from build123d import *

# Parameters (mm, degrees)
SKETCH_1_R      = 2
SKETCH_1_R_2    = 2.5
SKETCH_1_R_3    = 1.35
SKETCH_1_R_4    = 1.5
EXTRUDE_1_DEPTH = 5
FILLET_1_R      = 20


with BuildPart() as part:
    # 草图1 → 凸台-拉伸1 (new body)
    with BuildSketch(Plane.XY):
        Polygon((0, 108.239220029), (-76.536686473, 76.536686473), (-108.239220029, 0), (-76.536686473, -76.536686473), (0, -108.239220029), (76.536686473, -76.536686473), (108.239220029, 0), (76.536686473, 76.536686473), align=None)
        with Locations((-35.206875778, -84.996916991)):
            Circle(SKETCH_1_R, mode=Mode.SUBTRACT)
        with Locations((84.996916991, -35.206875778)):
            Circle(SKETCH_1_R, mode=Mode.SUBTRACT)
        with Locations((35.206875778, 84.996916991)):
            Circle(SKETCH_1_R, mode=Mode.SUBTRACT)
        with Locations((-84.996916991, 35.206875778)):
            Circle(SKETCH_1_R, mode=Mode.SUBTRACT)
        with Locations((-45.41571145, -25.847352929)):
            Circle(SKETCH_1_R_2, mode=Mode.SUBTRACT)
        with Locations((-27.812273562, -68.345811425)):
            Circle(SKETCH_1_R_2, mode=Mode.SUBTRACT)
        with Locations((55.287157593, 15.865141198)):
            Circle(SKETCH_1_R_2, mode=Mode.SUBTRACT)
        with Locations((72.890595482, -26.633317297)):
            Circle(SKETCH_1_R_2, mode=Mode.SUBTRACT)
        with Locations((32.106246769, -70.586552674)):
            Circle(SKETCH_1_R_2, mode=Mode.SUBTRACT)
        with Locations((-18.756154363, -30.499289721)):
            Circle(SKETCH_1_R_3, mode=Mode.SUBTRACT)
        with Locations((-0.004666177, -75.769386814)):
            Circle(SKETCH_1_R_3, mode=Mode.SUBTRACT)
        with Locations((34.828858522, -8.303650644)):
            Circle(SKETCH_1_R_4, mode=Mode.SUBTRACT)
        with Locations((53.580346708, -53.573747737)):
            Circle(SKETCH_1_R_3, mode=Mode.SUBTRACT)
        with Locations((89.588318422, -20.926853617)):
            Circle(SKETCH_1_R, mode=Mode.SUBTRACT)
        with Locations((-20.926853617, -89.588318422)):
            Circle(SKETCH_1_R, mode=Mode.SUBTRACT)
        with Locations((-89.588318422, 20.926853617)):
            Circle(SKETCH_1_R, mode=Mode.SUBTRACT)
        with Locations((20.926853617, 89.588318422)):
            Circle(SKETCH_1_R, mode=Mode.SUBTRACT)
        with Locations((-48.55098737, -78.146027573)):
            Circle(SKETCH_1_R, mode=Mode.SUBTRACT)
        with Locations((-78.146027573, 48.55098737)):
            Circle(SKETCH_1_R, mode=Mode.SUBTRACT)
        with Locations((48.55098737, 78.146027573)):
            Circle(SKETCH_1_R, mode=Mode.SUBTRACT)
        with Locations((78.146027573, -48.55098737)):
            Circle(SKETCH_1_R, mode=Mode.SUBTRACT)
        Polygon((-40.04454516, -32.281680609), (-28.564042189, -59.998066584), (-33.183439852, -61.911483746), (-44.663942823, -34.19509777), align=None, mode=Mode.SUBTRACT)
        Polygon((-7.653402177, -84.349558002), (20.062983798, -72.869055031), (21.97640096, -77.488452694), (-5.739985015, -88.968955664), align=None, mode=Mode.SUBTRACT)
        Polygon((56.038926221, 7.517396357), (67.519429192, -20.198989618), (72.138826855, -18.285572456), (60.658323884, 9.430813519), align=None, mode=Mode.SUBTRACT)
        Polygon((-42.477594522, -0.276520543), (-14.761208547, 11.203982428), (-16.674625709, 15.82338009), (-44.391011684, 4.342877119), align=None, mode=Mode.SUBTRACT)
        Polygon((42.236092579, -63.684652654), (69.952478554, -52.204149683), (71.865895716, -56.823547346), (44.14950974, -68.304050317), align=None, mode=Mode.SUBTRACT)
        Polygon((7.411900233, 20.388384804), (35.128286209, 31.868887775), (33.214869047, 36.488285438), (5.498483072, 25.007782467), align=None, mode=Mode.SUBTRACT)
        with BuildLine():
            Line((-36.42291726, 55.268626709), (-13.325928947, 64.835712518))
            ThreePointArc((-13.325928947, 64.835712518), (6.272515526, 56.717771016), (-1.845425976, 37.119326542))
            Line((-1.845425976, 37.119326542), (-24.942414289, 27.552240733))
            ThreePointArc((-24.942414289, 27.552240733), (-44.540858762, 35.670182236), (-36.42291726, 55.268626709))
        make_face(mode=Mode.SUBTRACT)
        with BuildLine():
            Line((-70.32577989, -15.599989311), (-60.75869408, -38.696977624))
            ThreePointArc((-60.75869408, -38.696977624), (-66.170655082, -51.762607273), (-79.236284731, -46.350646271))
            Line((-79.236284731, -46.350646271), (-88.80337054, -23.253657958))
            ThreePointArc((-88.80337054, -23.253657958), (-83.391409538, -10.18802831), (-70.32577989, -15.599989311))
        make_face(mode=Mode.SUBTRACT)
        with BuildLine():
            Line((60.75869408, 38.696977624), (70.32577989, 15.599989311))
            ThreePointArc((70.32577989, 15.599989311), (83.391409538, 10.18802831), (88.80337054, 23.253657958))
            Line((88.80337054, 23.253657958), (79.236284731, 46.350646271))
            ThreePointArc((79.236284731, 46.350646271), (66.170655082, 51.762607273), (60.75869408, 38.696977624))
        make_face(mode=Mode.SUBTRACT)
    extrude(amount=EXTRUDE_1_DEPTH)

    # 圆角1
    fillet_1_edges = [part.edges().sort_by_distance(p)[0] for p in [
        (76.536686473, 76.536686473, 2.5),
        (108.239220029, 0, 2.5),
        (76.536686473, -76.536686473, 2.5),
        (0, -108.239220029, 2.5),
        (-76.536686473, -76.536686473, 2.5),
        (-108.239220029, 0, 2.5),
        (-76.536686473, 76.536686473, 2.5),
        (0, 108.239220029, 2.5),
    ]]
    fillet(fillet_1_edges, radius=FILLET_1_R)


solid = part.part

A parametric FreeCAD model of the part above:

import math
import FreeCAD as App
import Part
import Sketcher

V = App.Vector
Q = App.Units.Quantity


def edges_at(feature, points):
    """Names of the edges that pass closest to the given points."""
    edges = feature.Shape.Edges
    near = lambda p: min(range(len(edges)), key=lambda i: edges[i].distToShape(Part.Vertex(*p))[0])
    return sorted({f"Edge{near(p) + 1}" for p in points})

doc = App.newDocument("Part")
body = doc.addObject("PartDesign::Body", "Body")

sketch1 = body.newObject("Sketcher::SketchObject", "Sketch")
sketch1.AttachmentSupport = (doc.getObject("XY_Plane"), [""])
sketch1.MapMode = "FlatFace"
sketch1.addGeometry([
    Part.LineSegment(V(0, 108.2, 0), V(-76.5, 76.5, 0)),
    Part.LineSegment(V(-76.5, 76.5, 0), V(-108.2, 0, 0)),
    Part.LineSegment(V(-108.2, 0, 0), V(-76.5, -76.5, 0)),
    Part.LineSegment(V(-76.5, -76.5, 0), V(0, -108.2, 0)),
    Part.LineSegment(V(0, -108.2, 0), V(76.5, -76.5, 0)),
    Part.LineSegment(V(76.5, -76.5, 0), V(108.2, 0, 0)),
    Part.LineSegment(V(108.2, 0, 0), V(76.5, 76.5, 0)),
    Part.LineSegment(V(76.5, 76.5, 0), V(0, 108.2, 0)),
    Part.Circle(V(-48.6, -78.1, 0), V(0, 0, 1), 2),
    Part.Circle(V(-35.2, -85, 0), V(0, 0, 1), 2),
    Part.Circle(V(-20.9, -89.6, 0), V(0, 0, 1), 2),
    Part.Circle(V(0, -75.8, 0), V(0, 0, 1), 1.4),
    Part.Circle(V(-27.8, -68.3, 0), V(0, 0, 1), 2.5),
    Part.LineSegment(V(-44.7, -34.2, 0), V(-40, -32.3, 0)),
    Part.LineSegment(V(-40, -32.3, 0), V(-28.6, -60, 0)),
    Part.LineSegment(V(-28.6, -60, 0), V(-33.2, -61.9, 0)),
    Part.LineSegment(V(-33.2, -61.9, 0), V(-44.7, -34.2, 0)),
    Part.ArcOfCircle(Part.Circle(V(-79.6, -19.4, 0), V(0, 0, 1), 10), math.radians(23), math.radians(202)),
    Part.LineSegment(V(-70.3, -15.6, 0), V(-60.8, -38.7, 0)),
    Part.ArcOfCircle(Part.Circle(V(-70, -42.5, 0), V(0, 0, 1), 10), math.radians(-158), math.radians(22)),
    Part.LineSegment(V(-79.2, -46.4, 0), V(-88.8, -23.3, 0)),
    Part.Circle(V(-45.4, -25.8, 0), V(0, 0, 1), 2.5),
    Part.Circle(V(-18.8, -30.5, 0), V(0, 0, 1), 1.4),
    Part.LineSegment(V(-5.7, -89, 0), V(-7.7, -84.3, 0)),
    Part.LineSegment(V(-7.7, -84.3, 0), V(20.1, -72.9, 0)),
    Part.LineSegment(V(20.1, -72.9, 0), V(22, -77.5, 0)),
    Part.LineSegment(V(22, -77.5, 0), V(-5.7, -89, 0)),
    Part.Circle(V(32.1, -70.6, 0), V(0, 0, 1), 2.5),
    Part.LineSegment(V(44.1, -68.3, 0), V(42.2, -63.7, 0)),
    Part.LineSegment(V(42.2, -63.7, 0), V(70, -52.2, 0)),
    Part.LineSegment(V(70, -52.2, 0), V(71.9, -56.8, 0)),
    Part.LineSegment(V(71.9, -56.8, 0), V(44.1, -68.3, 0)),
    Part.Circle(V(53.6, -53.6, 0), V(0, 0, 1), 1.4),
    Part.Circle(V(78.1, -48.6, 0), V(0, 0, 1), 2),
    Part.Circle(V(34.8, -8.3, 0), V(0, 0, 1), 1.5),
    Part.Circle(V(85, -35.2, 0), V(0, 0, 1), 2),
    Part.Circle(V(72.9, -26.6, 0), V(0, 0, 1), 2.5),
    Part.LineSegment(V(67.5, -20.2, 0), V(56, 7.5, 0)),
    Part.LineSegment(V(56, 7.5, 0), V(60.7, 9.4, 0)),
    Part.LineSegment(V(60.7, 9.4, 0), V(72.1, -18.3, 0)),
    Part.LineSegment(V(72.1, -18.3, 0), V(67.5, -20.2, 0)),
    Part.Circle(V(89.6, -20.9, 0), V(0, 0, 1), 2),
    Part.Circle(V(-89.6, 20.9, 0), V(0, 0, 1), 2),
    Part.Circle(V(-85, 35.2, 0), V(0, 0, 1), 2),
    Part.LineSegment(V(-14.8, 11.2, 0), V(-42.5, -0.3, 0)),
    Part.LineSegment(V(-42.5, -0.3, 0), V(-44.4, 4.3, 0)),
    Part.LineSegment(V(-44.4, 4.3, 0), V(-16.7, 15.8, 0)),
    Part.LineSegment(V(-16.7, 15.8, 0), V(-14.8, 11.2, 0)),
    Part.Circle(V(-78.1, 48.6, 0), V(0, 0, 1), 2),
    Part.ArcOfCircle(Part.Circle(V(-30.7, 41.4, 0), V(0, 0, 1), 15), math.radians(113), math.radians(292)),
    Part.LineSegment(V(-36.4, 55.3, 0), V(-13.3, 64.8, 0)),
    Part.ArcOfCircle(Part.Circle(V(-7.6, 51, 0), V(0, 0, 1), 15), math.radians(-67), math.radians(112)),
    Part.LineSegment(V(-1.8, 37.1, 0), V(-24.9, 27.6, 0)),
    Part.LineSegment(V(35.1, 31.9, 0), V(7.4, 20.4, 0)),
    Part.LineSegment(V(7.4, 20.4, 0), V(5.5, 25, 0)),
    Part.LineSegment(V(5.5, 25, 0), V(33.2, 36.5, 0)),
    Part.LineSegment(V(33.2, 36.5, 0), V(35.1, 31.9, 0)),
    Part.Circle(V(55.3, 15.9, 0), V(0, 0, 1), 2.5),
    Part.LineSegment(V(70.3, 15.6, 0), V(60.8, 38.7, 0)),
    Part.ArcOfCircle(Part.Circle(V(70, 42.5, 0), V(0, 0, 1), 10), math.radians(22), math.radians(202)),
    Part.LineSegment(V(79.2, 46.4, 0), V(88.8, 23.3, 0)),
    Part.ArcOfCircle(Part.Circle(V(79.6, 19.4, 0), V(0, 0, 1), 10), math.radians(-157), math.radians(22)),
    Part.Circle(V(20.9, 89.6, 0), V(0, 0, 1), 2),
    Part.Circle(V(35.2, 85, 0), V(0, 0, 1), 2),
    Part.Circle(V(48.6, 78.1, 0), V(0, 0, 1), 2),
], False)
sketch1.addConstraint([
    Sketcher.Constraint("Coincident", 0, 2, 1, 1),
    Sketcher.Constraint("Coincident", 1, 2, 2, 1),
    Sketcher.Constraint("Coincident", 2, 2, 3, 1),
    Sketcher.Constraint("Coincident", 3, 2, 4, 1),
    Sketcher.Constraint("Coincident", 4, 2, 5, 1),
    Sketcher.Constraint("Coincident", 5, 2, 6, 1),
    Sketcher.Constraint("Coincident", 6, 2, 7, 1),
    Sketcher.Constraint("Coincident", 7, 2, 0, 1),
    Sketcher.Constraint("Coincident", 13, 2, 14, 1),
    Sketcher.Constraint("Coincident", 14, 2, 15, 1),
    Sketcher.Constraint("Coincident", 15, 2, 16, 1),
    Sketcher.Constraint("Coincident", 16, 2, 13, 1),
    Sketcher.Constraint("Tangent", 17, 1, 18, 1),
    Sketcher.Constraint("Tangent", 18, 2, 19, 2),
    Sketcher.Constraint("Tangent", 19, 1, 20, 1),
    Sketcher.Constraint("Tangent", 20, 2, 17, 2),
    Sketcher.Constraint("Coincident", 23, 2, 24, 1),
    Sketcher.Constraint("Coincident", 24, 2, 25, 1),
    Sketcher.Constraint("Coincident", 25, 2, 26, 1),
    Sketcher.Constraint("Coincident", 26, 2, 23, 1),
    Sketcher.Constraint("Coincident", 28, 2, 29, 1),
    Sketcher.Constraint("Coincident", 29, 2, 30, 1),
    Sketcher.Constraint("Coincident", 30, 2, 31, 1),
    Sketcher.Constraint("Coincident", 31, 2, 28, 1),
    Sketcher.Constraint("Coincident", 37, 2, 38, 1),
    Sketcher.Constraint("Coincident", 38, 2, 39, 1),
    Sketcher.Constraint("Coincident", 39, 2, 40, 1),
    Sketcher.Constraint("Coincident", 40, 2, 37, 1),
    Sketcher.Constraint("Coincident", 44, 2, 45, 1),
    Sketcher.Constraint("Coincident", 45, 2, 46, 1),
    Sketcher.Constraint("Coincident", 46, 2, 47, 1),
    Sketcher.Constraint("Coincident", 47, 2, 44, 1),
    Sketcher.Constraint("Tangent", 49, 1, 50, 1),
    Sketcher.Constraint("Tangent", 50, 2, 51, 2),
    Sketcher.Constraint("Tangent", 51, 1, 52, 1),
    Sketcher.Constraint("Tangent", 52, 2, 49, 2),
    Sketcher.Constraint("Coincident", 53, 2, 54, 1),
    Sketcher.Constraint("Coincident", 54, 2, 55, 1),
    Sketcher.Constraint("Coincident", 55, 2, 56, 1),
    Sketcher.Constraint("Coincident", 56, 2, 53, 1),
    Sketcher.Constraint("Tangent", 58, 2, 59, 2),
    Sketcher.Constraint("Tangent", 59, 1, 60, 1),
    Sketcher.Constraint("Tangent", 60, 2, 61, 2),
    Sketcher.Constraint("Tangent", 61, 1, 58, 1),
    Sketcher.Constraint("Equal", 8, 9),
    Sketcher.Constraint("Equal", 9, 10),
    Sketcher.Constraint("Equal", 17, 19),
    Sketcher.Constraint("Equal", 12, 21),
    Sketcher.Constraint("Equal", 11, 22),
    Sketcher.Constraint("Equal", 21, 27),
    Sketcher.Constraint("Equal", 22, 32),
    Sketcher.Constraint("Equal", 10, 33),
    Sketcher.Constraint("Equal", 33, 35),
    Sketcher.Constraint("Equal", 27, 36),
    Sketcher.Constraint("Equal", 35, 41),
    Sketcher.Constraint("Equal", 41, 42),
    Sketcher.Constraint("Equal", 42, 43),
    Sketcher.Constraint("Equal", 43, 48),
    Sketcher.Constraint("Equal", 49, 51),
    Sketcher.Constraint("Equal", 36, 57),
    Sketcher.Constraint("Equal", 19, 59),
    Sketcher.Constraint("Equal", 59, 61),
    Sketcher.Constraint("Equal", 48, 62),
    Sketcher.Constraint("Equal", 62, 63),
    Sketcher.Constraint("Equal", 63, 64),
    Sketcher.Constraint("Symmetric", 41, 3, 42, 3, -1, 1),
    Sketcher.Constraint("Symmetric", 35, 3, 43, 3, -1, 1),
    Sketcher.Constraint("Symmetric", 33, 3, 48, 3, -1, 1),
    Sketcher.Constraint("Symmetric", 19, 3, 59, 3, -1, 1),
    Sketcher.Constraint("Symmetric", 17, 3, 61, 3, -1, 1),
    Sketcher.Constraint("Symmetric", 10, 3, 62, 3, -1, 1),
    Sketcher.Constraint("Symmetric", 9, 3, 63, 3, -1, 1),
    Sketcher.Constraint("Symmetric", 8, 3, 64, 3, -1, 1),
    Sketcher.Constraint("Symmetric", 0, 2, 4, 2, -1, 1),
    Sketcher.Constraint("Symmetric", 1, 2, 5, 2, -1, 1),
    Sketcher.Constraint("Symmetric", 2, 2, 6, 2, -1, 1),
    Sketcher.Constraint("Symmetric", 3, 2, 7, 2, -1, 1),
    Sketcher.Constraint("Symmetric", 2, 2, 4, 2, -2),
    Sketcher.Constraint("PointOnObject", 1, 2, -1),
    Sketcher.Constraint("PointOnObject", 3, 2, -2),
    Sketcher.Constraint("Perpendicular", 0, 2),
    Sketcher.Constraint("Perpendicular", 6, 13),
    Sketcher.Constraint("Perpendicular", 13, 14),
    Sketcher.Constraint("Perpendicular", 14, 15),
    Sketcher.Constraint("Perpendicular", 15, 16),
    Sketcher.Constraint("Parallel", 16, 18),
    Sketcher.Constraint("Parallel", 20, 23),
    Sketcher.Constraint("Perpendicular", 23, 24),
    Sketcher.Constraint("Perpendicular", 24, 25),
    Sketcher.Constraint("Perpendicular", 25, 26),
    Sketcher.Constraint("Perpendicular", 26, 28),
    Sketcher.Constraint("Perpendicular", 28, 29),
    Sketcher.Constraint("Perpendicular", 29, 30),
    Sketcher.Constraint("Perpendicular", 30, 31),
    Sketcher.Constraint("Perpendicular", 31, 37),
    Sketcher.Constraint("Perpendicular", 37, 38),
    Sketcher.Constraint("Perpendicular", 38, 39),
    Sketcher.Constraint("Perpendicular", 39, 40),
    Sketcher.Constraint("Parallel", 40, 44),
    Sketcher.Constraint("Perpendicular", 44, 45),
    Sketcher.Constraint("Perpendicular", 45, 46),
    Sketcher.Constraint("Perpendicular", 46, 47),
    Sketcher.Constraint("Perpendicular", 47, 50),
    Sketcher.Constraint("Parallel", 52, 53),
    Sketcher.Constraint("Perpendicular", 53, 54),
    Sketcher.Constraint("Perpendicular", 54, 55),
    Sketcher.Constraint("Perpendicular", 55, 56),
    Sketcher.Constraint("Equal", 0, 1),
    Sketcher.Constraint("Equal", 15, 23),
    Sketcher.Constraint("Equal", 16, 24),
    Sketcher.Constraint("Equal", 25, 28),
    Sketcher.Constraint("Equal", 26, 29),
    Sketcher.Constraint("Equal", 31, 37),
    Sketcher.Constraint("Equal", 30, 38),
    Sketcher.Constraint("Equal", 39, 44),
    Sketcher.Constraint("Equal", 40, 45),
    Sketcher.Constraint("Equal", 20, 50),
    Sketcher.Constraint("Equal", 46, 53),
    Sketcher.Constraint("Equal", 47, 54),
    Sketcher.Constraint("Diameter", 8, Q("4 mm")),
    Sketcher.Constraint("Diameter", 12, Q("5 mm")),
    Sketcher.Constraint("Diameter", 34, Q("3 mm")),
    Sketcher.Constraint("Radius", 17, Q("10 mm")),
    Sketcher.Constraint("Radius", 49, Q("15 mm")),
    Sketcher.Constraint("Diameter", 11, Q("2.7 mm")),
    Sketcher.Constraint("Distance", 13, Q("5 mm")),
    Sketcher.Constraint("Distance", 14, Q("30 mm")),
    Sketcher.Constraint("Distance", 18, Q("25 mm")),
    Sketcher.Constraint("Angle", 0, Q("-157.5 deg")),
    Sketcher.Constraint("DistanceX", -1, 1, 25, 2, Q("21.976401 mm")),
    Sketcher.Constraint("DistanceX", -1, 1, 53, 2, Q("7.4119 mm")),
    Sketcher.Constraint("DistanceY", 10, 3, -1, 1, Q("89.588318 mm")),
    Sketcher.Constraint("DistanceY", 12, 3, -1, 1, Q("68.345811 mm")),
    Sketcher.Constraint("DistanceX", 19, 3, -1, 1, Q("69.997489 mm")),
    Sketcher.Constraint("DistanceY", 19, 3, -1, 1, Q("42.523812 mm")),
    Sketcher.Constraint("DistanceX", 21, 3, -1, 1, Q("45.415711 mm")),
    Sketcher.Constraint("DistanceY", 22, 3, -1, 1, Q("30.49929 mm")),
    Sketcher.Constraint("DistanceX", -1, 1, 34, 3, Q("34.828859 mm")),
    Sketcher.Constraint("DistanceY", 34, 3, -1, 1, Q("8.303651 mm")),
    Sketcher.Constraint("DistanceX", -1, 1, 41, 3, Q("89.588318 mm")),
    Sketcher.Constraint("DistanceY", -1, 1, 51, 3, Q("50.97752 mm")),
    Sketcher.Constraint("DistanceY", -1, 1, 57, 3, Q("15.865141 mm")),
    Sketcher.Constraint("DistanceX", 1, 2, -1, 1, Q("108.23922 mm")),
    Sketcher.Constraint("DistanceY", 13, 2, -1, 1, Q("32.281681 mm")),
    Sketcher.Constraint("DistanceX", 15, 2, -1, 1, Q("33.18344 mm")),
    Sketcher.Constraint("DistanceY", 23, 2, -1, 1, Q("84.349558 mm")),
    Sketcher.Constraint("DistanceX", -1, 1, 29, 2, Q("69.952479 mm")),
    Sketcher.Constraint("DistanceY", 29, 2, -1, 1, Q("52.20415 mm")),
    Sketcher.Constraint("DistanceX", -1, 1, 40, 2, Q("67.519429 mm")),
    Sketcher.Constraint("DistanceY", 40, 2, -1, 1, Q("20.19899 mm")),
    Sketcher.Constraint("DistanceY", 44, 2, -1, 1, Q("0.276521 mm")),
    Sketcher.Constraint("DistanceX", 45, 2, -1, 1, Q("44.391012 mm")),
    Sketcher.Constraint("DistanceX", 50, 2, -1, 1, Q("13.325929 mm")),
    Sketcher.Constraint("DistanceX", 8, 3, -1, 1, Q("48.550987 mm")),
    Sketcher.Constraint("DistanceY", 8, 3, -1, 1, Q("78.146028 mm")),
    Sketcher.Constraint("DistanceX", 9, 3, -1, 1, Q("35.206876 mm")),
    Sketcher.Constraint("DistanceY", 9, 3, -1, 1, Q("84.996917 mm")),
    Sketcher.Constraint("DistanceX", 10, 3, -1, 1, Q("20.926854 mm")),
    Sketcher.Constraint("DistanceX", 11, 3, -1, 1, Q("0.004666 mm")),
    Sketcher.Constraint("DistanceY", 11, 3, -1, 1, Q("75.769387 mm")),
    Sketcher.Constraint("DistanceX", 12, 3, -1, 1, Q("27.812274 mm")),
    Sketcher.Constraint("DistanceY", 21, 3, -1, 1, Q("25.847353 mm")),
    Sketcher.Constraint("DistanceX", 22, 3, -1, 1, Q("18.756154 mm")),
    Sketcher.Constraint("DistanceX", -1, 1, 27, 3, Q("32.106247 mm")),
    Sketcher.Constraint("DistanceY", 27, 3, -1, 1, Q("70.586553 mm")),
    Sketcher.Constraint("DistanceX", -1, 1, 32, 3, Q("53.580347 mm")),
    Sketcher.Constraint("DistanceY", 32, 3, -1, 1, Q("53.573748 mm")),
    Sketcher.Constraint("DistanceX", -1, 1, 33, 3, Q("78.146028 mm")),
    Sketcher.Constraint("DistanceY", 33, 3, -1, 1, Q("48.550987 mm")),
    Sketcher.Constraint("DistanceX", -1, 1, 35, 3, Q("84.996917 mm")),
    Sketcher.Constraint("DistanceY", 35, 3, -1, 1, Q("35.206876 mm")),
    Sketcher.Constraint("DistanceX", -1, 1, 36, 3, Q("72.890595 mm")),
    Sketcher.Constraint("DistanceY", 36, 3, -1, 1, Q("26.633317 mm")),
    Sketcher.Constraint("DistanceY", 41, 3, -1, 1, Q("20.926854 mm")),
    Sketcher.Constraint("DistanceX", -1, 1, 57, 3, Q("55.287158 mm")),
    Sketcher.Constraint("DistanceY", -1, 1, 53, 2, Q("20.388385 mm")),
])
pad1 = body.newObject("PartDesign::Pad", "Pad")
pad1.Profile = sketch1
pad1.Length = 5
doc.recompute()

fillet = body.newObject("PartDesign::Fillet", "Fillet")
fillet.Base = (pad1, edges_at(pad1, [
    (76.537, 76.537, 2.5),
    (108.239, 0, 2.5),
    (76.537, -76.537, 2.5),
    (0, -108.239, 2.5),
    (-76.537, -76.537, 2.5),
    (-108.239, 0, 2.5),
    (-76.537, 76.537, 2.5),
    (0, 108.239, 2.5),
]))
fillet.Radius = 20

doc.recompute()
